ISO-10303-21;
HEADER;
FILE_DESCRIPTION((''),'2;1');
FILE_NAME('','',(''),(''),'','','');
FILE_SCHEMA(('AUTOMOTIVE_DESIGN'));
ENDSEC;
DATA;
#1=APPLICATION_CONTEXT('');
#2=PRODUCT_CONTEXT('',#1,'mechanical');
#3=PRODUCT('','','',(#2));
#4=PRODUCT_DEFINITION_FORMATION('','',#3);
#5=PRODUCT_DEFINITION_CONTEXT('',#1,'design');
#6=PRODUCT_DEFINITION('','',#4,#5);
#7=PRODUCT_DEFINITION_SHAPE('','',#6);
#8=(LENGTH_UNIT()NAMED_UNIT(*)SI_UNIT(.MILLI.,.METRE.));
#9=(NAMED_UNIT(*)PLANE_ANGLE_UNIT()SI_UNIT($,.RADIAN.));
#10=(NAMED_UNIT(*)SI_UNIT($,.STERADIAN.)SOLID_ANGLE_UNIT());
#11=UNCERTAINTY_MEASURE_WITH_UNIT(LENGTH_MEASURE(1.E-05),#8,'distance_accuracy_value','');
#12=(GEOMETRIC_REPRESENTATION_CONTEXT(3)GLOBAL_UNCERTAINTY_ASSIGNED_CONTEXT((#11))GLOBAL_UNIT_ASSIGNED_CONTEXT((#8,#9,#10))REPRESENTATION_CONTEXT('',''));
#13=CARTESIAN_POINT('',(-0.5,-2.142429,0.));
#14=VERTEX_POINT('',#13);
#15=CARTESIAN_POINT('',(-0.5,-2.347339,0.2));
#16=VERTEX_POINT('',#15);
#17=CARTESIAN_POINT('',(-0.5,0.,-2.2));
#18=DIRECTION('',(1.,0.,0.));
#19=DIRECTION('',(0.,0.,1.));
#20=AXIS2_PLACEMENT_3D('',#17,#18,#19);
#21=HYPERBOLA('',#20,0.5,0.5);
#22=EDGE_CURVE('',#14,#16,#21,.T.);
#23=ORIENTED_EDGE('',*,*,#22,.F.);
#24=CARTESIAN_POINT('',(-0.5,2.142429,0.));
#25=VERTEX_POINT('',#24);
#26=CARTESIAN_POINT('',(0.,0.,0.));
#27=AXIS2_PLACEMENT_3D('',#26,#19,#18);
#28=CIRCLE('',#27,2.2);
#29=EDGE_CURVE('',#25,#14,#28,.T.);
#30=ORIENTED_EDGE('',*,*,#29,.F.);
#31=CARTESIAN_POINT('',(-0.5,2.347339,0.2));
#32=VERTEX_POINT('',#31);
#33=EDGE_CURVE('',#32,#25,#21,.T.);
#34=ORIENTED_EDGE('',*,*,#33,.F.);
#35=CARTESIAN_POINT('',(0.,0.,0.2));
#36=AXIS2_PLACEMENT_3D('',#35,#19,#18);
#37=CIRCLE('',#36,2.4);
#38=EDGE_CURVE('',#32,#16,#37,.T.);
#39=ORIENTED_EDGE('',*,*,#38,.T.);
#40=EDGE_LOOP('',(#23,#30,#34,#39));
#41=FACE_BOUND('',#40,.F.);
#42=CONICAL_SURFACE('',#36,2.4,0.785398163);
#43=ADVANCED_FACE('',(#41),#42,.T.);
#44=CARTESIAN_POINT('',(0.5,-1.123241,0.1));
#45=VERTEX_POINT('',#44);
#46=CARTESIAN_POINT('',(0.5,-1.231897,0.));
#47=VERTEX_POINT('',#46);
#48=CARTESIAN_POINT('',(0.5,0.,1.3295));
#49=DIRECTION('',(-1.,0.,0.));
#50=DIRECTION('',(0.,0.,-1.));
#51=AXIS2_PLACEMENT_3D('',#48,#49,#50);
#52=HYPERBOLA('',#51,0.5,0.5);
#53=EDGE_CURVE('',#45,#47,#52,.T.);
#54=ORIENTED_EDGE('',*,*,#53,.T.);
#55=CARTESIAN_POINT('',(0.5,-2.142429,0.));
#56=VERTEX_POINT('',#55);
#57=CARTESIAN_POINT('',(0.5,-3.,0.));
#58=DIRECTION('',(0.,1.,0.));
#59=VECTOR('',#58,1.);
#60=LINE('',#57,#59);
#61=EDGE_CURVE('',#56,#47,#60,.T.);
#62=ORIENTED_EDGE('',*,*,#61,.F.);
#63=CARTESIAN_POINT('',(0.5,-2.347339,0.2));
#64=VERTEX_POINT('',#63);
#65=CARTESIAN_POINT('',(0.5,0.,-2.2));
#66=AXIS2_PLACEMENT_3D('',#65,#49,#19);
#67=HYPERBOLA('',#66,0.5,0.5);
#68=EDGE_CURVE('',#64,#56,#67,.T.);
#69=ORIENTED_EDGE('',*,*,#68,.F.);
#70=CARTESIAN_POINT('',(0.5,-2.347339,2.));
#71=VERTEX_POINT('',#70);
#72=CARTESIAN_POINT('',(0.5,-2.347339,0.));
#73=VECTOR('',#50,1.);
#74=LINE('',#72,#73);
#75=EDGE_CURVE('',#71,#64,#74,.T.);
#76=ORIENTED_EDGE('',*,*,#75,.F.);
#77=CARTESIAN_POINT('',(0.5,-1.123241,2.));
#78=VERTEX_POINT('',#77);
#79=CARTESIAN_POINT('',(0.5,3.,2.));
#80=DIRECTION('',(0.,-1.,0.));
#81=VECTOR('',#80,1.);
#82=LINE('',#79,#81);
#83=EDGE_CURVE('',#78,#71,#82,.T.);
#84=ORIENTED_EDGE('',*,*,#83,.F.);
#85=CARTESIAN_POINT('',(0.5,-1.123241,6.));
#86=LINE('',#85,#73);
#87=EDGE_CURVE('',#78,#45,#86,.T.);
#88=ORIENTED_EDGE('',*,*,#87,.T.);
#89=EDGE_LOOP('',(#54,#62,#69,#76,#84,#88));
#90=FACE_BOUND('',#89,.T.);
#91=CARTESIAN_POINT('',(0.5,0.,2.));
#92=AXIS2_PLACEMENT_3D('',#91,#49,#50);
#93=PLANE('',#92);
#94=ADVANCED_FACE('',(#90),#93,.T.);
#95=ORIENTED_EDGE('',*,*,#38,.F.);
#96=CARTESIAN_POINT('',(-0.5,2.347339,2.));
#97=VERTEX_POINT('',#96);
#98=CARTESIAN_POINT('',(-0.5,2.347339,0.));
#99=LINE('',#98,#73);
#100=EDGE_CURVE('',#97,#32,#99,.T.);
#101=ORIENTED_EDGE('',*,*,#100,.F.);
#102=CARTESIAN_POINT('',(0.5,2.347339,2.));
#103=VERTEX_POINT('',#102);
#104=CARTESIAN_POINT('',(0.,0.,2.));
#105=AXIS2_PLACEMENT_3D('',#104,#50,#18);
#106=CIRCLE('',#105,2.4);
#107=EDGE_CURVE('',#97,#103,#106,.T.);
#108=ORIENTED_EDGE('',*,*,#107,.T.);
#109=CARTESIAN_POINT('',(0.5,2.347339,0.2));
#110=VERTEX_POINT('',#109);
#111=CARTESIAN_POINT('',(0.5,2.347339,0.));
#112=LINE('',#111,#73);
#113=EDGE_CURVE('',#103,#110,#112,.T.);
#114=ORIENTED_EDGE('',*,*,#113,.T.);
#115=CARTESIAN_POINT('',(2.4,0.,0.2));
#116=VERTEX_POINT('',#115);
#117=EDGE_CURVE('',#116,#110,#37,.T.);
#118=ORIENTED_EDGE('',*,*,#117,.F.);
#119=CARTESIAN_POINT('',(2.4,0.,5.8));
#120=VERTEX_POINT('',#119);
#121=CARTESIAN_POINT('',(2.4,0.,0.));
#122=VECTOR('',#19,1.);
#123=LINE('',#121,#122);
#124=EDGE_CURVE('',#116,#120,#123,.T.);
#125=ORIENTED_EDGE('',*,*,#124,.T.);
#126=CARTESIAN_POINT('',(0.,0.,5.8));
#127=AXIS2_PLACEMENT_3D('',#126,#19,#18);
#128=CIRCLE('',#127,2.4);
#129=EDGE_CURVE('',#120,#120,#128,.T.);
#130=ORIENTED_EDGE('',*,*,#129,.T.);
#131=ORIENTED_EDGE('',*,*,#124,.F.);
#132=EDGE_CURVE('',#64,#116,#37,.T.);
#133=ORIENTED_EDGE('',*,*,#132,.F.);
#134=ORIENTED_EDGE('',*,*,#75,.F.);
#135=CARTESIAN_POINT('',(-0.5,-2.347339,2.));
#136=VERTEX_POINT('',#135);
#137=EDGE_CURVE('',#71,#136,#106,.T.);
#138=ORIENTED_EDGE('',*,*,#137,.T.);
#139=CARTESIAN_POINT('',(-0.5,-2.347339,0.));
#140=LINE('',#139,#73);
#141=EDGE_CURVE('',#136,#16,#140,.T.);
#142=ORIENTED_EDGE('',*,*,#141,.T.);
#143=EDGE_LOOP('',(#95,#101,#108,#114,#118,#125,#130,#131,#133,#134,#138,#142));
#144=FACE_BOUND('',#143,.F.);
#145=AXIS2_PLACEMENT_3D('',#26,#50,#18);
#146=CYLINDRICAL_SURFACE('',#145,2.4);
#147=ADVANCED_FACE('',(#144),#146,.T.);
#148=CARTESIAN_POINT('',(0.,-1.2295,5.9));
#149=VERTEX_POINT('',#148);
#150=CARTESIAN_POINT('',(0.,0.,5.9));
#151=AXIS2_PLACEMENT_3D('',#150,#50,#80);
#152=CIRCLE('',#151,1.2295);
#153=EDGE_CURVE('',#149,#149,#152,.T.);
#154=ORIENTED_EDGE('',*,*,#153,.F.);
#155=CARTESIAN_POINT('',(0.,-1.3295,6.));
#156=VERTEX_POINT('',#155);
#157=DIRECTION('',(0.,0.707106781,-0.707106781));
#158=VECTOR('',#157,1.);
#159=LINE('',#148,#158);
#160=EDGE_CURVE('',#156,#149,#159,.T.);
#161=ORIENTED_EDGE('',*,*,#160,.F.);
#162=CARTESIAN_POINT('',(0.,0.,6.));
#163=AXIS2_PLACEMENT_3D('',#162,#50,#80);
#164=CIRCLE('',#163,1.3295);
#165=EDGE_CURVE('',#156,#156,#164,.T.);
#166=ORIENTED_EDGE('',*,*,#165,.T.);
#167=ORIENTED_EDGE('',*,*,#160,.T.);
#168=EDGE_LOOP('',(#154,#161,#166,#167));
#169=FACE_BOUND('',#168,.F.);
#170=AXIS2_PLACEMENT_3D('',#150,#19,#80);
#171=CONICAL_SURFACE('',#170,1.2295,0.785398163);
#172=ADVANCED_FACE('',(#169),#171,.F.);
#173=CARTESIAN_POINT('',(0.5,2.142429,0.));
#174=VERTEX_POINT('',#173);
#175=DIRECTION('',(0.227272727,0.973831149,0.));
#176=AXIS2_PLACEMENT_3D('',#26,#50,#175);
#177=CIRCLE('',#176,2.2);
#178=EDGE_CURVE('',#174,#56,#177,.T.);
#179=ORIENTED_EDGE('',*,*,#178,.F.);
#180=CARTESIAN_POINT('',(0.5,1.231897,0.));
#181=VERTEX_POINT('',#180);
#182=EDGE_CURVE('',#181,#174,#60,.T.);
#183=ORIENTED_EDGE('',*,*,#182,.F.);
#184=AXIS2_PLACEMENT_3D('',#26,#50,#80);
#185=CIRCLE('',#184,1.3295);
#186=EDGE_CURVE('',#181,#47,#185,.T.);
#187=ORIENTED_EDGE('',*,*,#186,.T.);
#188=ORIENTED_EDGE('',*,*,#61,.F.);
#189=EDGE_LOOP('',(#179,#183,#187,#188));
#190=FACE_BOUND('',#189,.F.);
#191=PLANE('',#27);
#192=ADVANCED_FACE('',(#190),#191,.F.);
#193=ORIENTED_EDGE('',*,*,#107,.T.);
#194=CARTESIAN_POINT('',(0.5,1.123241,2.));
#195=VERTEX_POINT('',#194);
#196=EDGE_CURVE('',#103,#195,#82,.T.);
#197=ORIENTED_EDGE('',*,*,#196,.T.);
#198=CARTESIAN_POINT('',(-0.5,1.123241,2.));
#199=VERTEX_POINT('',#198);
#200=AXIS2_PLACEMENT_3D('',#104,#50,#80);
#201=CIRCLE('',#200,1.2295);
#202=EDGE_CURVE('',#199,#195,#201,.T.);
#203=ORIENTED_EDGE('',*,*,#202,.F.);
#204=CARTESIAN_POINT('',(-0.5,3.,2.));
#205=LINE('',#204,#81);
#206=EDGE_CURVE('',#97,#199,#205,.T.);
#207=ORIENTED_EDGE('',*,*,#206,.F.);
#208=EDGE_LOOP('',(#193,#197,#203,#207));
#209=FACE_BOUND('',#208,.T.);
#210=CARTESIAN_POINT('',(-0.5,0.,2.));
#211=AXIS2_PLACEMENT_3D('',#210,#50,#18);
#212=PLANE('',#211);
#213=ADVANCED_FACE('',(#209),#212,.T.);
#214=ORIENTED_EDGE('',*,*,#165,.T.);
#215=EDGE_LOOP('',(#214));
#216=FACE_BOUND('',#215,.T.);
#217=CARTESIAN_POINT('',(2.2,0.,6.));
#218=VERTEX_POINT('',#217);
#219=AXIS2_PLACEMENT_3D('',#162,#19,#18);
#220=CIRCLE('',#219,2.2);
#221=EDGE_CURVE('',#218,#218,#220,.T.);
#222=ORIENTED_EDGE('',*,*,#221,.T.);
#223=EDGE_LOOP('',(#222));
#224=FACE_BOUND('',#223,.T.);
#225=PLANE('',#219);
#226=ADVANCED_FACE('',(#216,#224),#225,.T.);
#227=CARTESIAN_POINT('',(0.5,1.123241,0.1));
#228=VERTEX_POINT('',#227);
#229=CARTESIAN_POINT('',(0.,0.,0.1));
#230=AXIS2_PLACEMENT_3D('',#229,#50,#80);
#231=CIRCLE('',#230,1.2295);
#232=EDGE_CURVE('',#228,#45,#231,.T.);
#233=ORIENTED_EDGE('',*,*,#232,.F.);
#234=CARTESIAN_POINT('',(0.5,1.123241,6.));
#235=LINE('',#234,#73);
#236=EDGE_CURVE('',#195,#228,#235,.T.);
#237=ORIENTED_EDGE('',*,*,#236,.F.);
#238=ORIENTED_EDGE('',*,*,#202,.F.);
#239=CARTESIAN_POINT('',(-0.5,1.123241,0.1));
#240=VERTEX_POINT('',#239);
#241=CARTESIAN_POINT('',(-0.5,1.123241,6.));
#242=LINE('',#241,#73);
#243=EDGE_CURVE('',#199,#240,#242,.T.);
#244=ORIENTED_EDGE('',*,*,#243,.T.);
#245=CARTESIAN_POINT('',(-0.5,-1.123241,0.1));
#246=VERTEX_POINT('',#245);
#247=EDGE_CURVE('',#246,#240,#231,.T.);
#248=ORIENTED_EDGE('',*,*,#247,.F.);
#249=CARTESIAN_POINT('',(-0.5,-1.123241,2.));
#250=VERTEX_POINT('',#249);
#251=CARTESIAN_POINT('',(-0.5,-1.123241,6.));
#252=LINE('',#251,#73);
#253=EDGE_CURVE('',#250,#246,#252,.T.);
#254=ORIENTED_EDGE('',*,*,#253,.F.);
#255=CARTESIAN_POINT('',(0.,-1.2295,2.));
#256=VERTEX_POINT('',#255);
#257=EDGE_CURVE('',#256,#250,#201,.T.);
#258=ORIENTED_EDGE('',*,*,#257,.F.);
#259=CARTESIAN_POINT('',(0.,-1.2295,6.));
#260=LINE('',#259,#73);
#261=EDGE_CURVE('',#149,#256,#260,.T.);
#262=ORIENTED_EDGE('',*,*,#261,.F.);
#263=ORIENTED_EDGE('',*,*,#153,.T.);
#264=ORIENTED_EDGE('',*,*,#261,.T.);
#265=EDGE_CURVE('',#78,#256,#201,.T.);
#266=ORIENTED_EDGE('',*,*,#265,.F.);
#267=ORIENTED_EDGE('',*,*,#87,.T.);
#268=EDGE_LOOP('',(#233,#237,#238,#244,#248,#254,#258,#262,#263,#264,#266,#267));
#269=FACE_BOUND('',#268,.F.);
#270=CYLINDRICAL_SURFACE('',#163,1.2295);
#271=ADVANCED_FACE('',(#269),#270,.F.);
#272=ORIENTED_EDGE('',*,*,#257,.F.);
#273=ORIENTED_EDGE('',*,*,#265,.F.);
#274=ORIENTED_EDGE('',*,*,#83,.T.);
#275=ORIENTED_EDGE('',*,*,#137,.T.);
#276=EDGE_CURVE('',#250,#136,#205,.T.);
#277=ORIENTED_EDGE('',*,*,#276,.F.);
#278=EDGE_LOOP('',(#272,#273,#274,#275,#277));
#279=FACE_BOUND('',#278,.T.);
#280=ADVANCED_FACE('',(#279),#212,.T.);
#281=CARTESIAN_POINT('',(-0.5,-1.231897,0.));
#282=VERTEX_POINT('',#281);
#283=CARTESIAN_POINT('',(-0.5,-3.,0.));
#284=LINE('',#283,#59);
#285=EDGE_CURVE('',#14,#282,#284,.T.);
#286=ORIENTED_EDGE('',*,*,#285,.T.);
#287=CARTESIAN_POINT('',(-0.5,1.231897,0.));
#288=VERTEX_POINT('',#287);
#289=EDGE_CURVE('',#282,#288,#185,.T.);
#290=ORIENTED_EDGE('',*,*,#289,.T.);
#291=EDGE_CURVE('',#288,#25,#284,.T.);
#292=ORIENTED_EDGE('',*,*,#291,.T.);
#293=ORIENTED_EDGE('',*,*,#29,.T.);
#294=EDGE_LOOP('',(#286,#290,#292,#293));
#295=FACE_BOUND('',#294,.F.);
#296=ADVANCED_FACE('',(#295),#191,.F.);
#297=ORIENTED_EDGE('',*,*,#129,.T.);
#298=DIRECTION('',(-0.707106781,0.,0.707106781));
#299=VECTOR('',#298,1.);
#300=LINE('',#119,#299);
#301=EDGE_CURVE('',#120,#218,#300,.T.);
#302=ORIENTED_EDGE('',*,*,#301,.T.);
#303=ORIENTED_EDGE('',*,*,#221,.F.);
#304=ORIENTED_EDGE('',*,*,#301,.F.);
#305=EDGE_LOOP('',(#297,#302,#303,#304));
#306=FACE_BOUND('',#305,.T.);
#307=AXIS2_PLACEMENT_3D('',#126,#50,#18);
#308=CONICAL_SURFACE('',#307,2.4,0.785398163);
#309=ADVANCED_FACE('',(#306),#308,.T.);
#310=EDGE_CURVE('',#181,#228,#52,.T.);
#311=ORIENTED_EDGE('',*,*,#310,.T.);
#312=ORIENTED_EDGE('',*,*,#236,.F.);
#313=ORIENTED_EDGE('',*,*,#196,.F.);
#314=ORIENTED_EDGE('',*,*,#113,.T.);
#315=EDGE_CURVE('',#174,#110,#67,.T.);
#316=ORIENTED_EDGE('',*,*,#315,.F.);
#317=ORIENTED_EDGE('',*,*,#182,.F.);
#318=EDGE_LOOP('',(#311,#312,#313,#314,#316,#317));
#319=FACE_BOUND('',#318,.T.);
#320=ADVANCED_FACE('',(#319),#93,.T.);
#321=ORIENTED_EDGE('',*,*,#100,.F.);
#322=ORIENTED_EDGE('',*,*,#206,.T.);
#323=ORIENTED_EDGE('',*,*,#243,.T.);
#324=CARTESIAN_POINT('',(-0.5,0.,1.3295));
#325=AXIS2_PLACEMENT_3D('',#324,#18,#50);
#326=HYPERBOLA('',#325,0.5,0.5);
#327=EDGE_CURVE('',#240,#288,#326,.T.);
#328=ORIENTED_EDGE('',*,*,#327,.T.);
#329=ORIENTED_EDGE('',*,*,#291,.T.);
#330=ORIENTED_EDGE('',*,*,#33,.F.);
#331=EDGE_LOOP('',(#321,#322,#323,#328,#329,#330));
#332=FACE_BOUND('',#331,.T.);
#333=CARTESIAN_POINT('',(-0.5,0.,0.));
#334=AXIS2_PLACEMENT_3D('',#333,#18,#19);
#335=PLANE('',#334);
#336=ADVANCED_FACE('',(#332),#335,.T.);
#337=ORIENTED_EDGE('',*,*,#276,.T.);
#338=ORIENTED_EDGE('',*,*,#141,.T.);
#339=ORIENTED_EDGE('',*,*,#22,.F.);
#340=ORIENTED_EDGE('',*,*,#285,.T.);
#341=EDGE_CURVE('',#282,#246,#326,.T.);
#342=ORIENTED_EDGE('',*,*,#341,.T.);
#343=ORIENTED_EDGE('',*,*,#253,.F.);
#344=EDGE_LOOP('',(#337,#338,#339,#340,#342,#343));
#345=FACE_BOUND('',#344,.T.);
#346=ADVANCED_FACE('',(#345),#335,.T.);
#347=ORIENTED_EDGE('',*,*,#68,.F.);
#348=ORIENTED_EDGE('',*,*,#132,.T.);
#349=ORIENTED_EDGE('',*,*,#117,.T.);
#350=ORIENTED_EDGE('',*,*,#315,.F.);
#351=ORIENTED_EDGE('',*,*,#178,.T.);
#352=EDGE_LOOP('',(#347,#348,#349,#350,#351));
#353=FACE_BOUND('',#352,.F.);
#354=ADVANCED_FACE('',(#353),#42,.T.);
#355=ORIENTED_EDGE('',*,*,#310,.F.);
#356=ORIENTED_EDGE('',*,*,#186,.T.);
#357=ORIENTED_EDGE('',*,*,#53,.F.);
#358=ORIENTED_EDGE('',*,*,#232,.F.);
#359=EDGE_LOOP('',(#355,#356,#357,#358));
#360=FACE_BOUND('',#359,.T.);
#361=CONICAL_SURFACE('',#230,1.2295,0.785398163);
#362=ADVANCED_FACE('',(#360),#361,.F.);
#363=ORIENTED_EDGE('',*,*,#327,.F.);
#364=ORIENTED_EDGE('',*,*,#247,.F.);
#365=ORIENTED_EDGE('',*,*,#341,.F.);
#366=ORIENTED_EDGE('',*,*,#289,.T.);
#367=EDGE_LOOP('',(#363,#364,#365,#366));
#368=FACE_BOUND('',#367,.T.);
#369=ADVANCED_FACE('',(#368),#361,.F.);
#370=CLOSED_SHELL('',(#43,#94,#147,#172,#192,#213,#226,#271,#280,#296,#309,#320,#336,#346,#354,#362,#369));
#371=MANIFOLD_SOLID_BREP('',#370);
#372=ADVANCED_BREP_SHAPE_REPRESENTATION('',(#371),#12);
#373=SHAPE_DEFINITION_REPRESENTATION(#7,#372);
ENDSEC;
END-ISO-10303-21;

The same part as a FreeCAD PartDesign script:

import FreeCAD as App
import Part
import Sketcher

V = App.Vector
Q = App.Units.Quantity


def edges_at(feature, points):
    """Names of the edges that pass closest to the given points."""
    edges = feature.Shape.Edges
    near = lambda p: min(range(len(edges)), key=lambda i: edges[i].distToShape(Part.Vertex(*p))[0])
    return sorted({f"Edge{near(p) + 1}" for p in points})

doc = App.newDocument("Part")
body = doc.addObject("PartDesign::Body", "Body")

# Sketch on XY plane
sketch1 = doc.addObject("Sketcher::SketchObject", "Sketch")
body.addObject(sketch1)
sketch1.AttachmentSupport = (doc.XY_Plane, [""])
sketch1.MapMode = "FlatFace"
sketch1.addGeometry(Part.Circle(V(0, 0, 0), V(0, 0, 1), 2.4), False)
sketch1.addConstraint([
    Sketcher.Constraint("Coincident", 0, 3, -1, 1),
    Sketcher.Constraint("Diameter", 0, Q("4.8 mm")),
])
pad1 = doc.addObject("PartDesign::Pad", "Pad")
body.addObject(pad1)
pad1.Profile = sketch1
pad1.Length = 6

# Sketch on XY plane
sketch2 = doc.addObject("Sketcher::SketchObject", "Sketch001")
body.addObject(sketch2)
sketch2.AttachmentSupport = (doc.XY_Plane, [""])
sketch2.MapMode = "FlatFace"
sketch2.AttachmentOffset = App.Placement(V(0, 0, 6), App.Rotation())
sketch2.addGeometry(Part.Circle(V(0, 0, 0), V(0, 0, 1), 1.2), False)
sketch2.addConstraint([
    Sketcher.Constraint("Coincident", 0, 3, -1, 1),
    Sketcher.Constraint("Diameter", 0, Q("2.459 mm")),
])
doc.recompute()
hole = doc.addObject("PartDesign::Hole", "Hole")
body.addObject(hole)
hole.Profile = sketch2
hole.ThreadType = "None"
hole.Diameter = 2.459
hole.DepthType = "ThroughAll"
doc.recompute()

chamfer = doc.addObject("PartDesign::Chamfer", "Chamfer")
body.addObject(chamfer)
chamfer.Base = (hole, edges_at(hole, [(-2.4, 0, 6), (-2.4, 0, 0)]))
chamfer.Size = 0.2
doc.recompute()

chamfer2 = doc.addObject("PartDesign::Chamfer", "Chamfer001")
body.addObject(chamfer2)
chamfer2.Base = (chamfer, edges_at(chamfer, [(0, 1.23, 6), (0, 1.23, 0)]))
chamfer2.Size = 0.1

# Sketch on XZ plane
sketch3 = doc.addObject("Sketcher::SketchObject", "Sketch002")
body.addObject(sketch3)
sketch3.AttachmentSupport = (doc.XZ_Plane, [""])
sketch3.MapMode = "FlatFace"
sketch3.addGeometry([
    Part.LineSegment(V(0.5, 2, 0), V(0.5, 0, 0)),
    Part.LineSegment(V(0.5, 0, 0), V(-0.5, 0, 0)),
    Part.LineSegment(V(-0.5, 0, 0), V(-0.5, 2, 0)),
    Part.LineSegment(V(-0.5, 2, 0), V(0.5, 2, 0)),
], False)
sketch3.addConstraint([
    Sketcher.Constraint("Coincident", 0, 2, 1, 1),
    Sketcher.Constraint("Coincident", 1, 2, 2, 1),
    Sketcher.Constraint("Coincident", 2, 2, 3, 1),
    Sketcher.Constraint("Coincident", 3, 2, 0, 1),
    Sketcher.Constraint("Vertical", 0),
    Sketcher.Constraint("Horizontal", 1),
    Sketcher.Constraint("Vertical", 2),
    Sketcher.Constraint("Horizontal", 3),
    Sketcher.Constraint("Symmetric", 0, 2, 1, 2, -1, 1),
    Sketcher.Constraint("DistanceX", 1, 2, 1, 1, Q("1 mm")),
    Sketcher.Constraint("DistanceY", 0, 2, 0, 1, Q("2 mm")),
])
pocket1 = doc.addObject("PartDesign::Pocket", "Pocket")
body.addObject(pocket1)
pocket1.Profile = sketch3
pocket1.Length = 6
pocket1.Midplane = True

doc.recompute()
